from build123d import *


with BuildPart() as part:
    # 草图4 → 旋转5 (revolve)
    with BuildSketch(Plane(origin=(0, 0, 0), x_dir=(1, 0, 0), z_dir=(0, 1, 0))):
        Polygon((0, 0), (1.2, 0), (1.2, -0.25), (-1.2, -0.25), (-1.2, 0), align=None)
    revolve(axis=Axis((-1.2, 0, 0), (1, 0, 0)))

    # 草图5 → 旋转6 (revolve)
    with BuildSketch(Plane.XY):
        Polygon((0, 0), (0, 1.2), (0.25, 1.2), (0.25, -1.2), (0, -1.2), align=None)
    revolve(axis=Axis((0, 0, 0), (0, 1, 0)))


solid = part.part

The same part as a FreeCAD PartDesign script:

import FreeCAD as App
import Part
import Sketcher
from FreeCAD import Vector
Q = App.Units.Quantity


def add_polygon(sketch, points):
    """Adds a closed chain of lines whose ends are joined by coincident constraints."""
    first, n = sketch.GeometryCount, len(points)
    for a, b in zip(points, points[1:] + points[:1]):
        sketch.addGeometry(Part.LineSegment(App.Vector(*a, 0), App.Vector(*b, 0)), False)
    for i in range(n):
        sketch.addConstraint(Sketcher.Constraint("Coincident", first + i, 2, first + (i + 1) % n, 1))

doc = App.newDocument("Part")
params = doc.addObject("Spreadsheet::Sheet", "Params")
for row, (alias, value) in enumerate([
    ("sketch1_width", "2.4 mm"),
    ("sketch1_height", "0.25 mm"),
    ("revolution_angle", "360 deg"),
    ("sketch2_height", "2.4 mm"),
    ("sketch2_width", "0.25 mm"),
    ("revolution2_angle", "360 deg"),
], start=1):
    params.set(f"A{row}", alias)
    params.set(f"B{row}", "=" + value)
    params.setAlias(f"B{row}", alias)

body = doc.addObject("PartDesign::Body", "Body")

sketch1 = body.newObject("Sketcher::SketchObject", "Sketch")
sketch1.AttachmentSupport = (doc.getObject("XZ_Plane"), [""])
sketch1.MapMode = "FlatFace"
add_polygon(sketch1, [(1.2, 0), (-1.2, 0), (-1.2, 0.25), (1.2, 0.25)])
sketch1.addConstraint([
    Sketcher.Constraint("Horizontal", 0),
    Sketcher.Constraint("Vertical", 1),
    Sketcher.Constraint("Horizontal", 2),
    Sketcher.Constraint("Vertical", 3),
    Sketcher.Constraint("Symmetric", 0, 2, 3, 2, -1, 1),
    Sketcher.Constraint("DistanceX", 0, 2, 0, 1, Q("2.4 mm")),
    Sketcher.Constraint("DistanceY", 1, 1, 1, 2, Q("0.25 mm")),
])
sketch1.setExpression("Constraints[9]", "Params.sketch1_width")
sketch1.setExpression("Constraints[10]", "Params.sketch1_height")
revolution = body.newObject("PartDesign::Revolution", "Revolution")
revolution.Profile = sketch1
revolution.ReferenceAxis = (sketch1, ["H_Axis"])
revolution.setExpression("Angle", "Params.revolution_angle")

sketch2 = body.newObject("Sketcher::SketchObject", "Sketch001")
sketch2.AttachmentSupport = (doc.getObject("XY_Plane"), [""])
sketch2.MapMode = "FlatFace"
add_polygon(sketch2, [(0, 1.2), (0, -1.2), (0.25, -1.2), (0.25, 1.2)])
sketch2.addConstraint([
    Sketcher.Constraint("Vertical", 0),
    Sketcher.Constraint("Horizontal", 1),
    Sketcher.Constraint("Vertical", 2),
    Sketcher.Constraint("Horizontal", 3),
    Sketcher.Constraint("Symmetric", 0, 2, 3, 2, -1, 1),
    Sketcher.Constraint("DistanceY", 0, 2, 0, 1, Q("2.4 mm")),
    Sketcher.Constraint("DistanceX", 1, 1, 1, 2, Q("0.25 mm")),
])
sketch2.setExpression("Constraints[9]", "Params.sketch2_height")
sketch2.setExpression("Constraints[10]", "Params.sketch2_width")
revolution2 = body.newObject("PartDesign::Revolution", "Revolution001")
revolution2.Profile = sketch2
revolution2.ReferenceAxis = (sketch2, ["V_Axis"])
revolution2.setExpression("Angle", "Params.revolution2_angle")

doc.recompute()
